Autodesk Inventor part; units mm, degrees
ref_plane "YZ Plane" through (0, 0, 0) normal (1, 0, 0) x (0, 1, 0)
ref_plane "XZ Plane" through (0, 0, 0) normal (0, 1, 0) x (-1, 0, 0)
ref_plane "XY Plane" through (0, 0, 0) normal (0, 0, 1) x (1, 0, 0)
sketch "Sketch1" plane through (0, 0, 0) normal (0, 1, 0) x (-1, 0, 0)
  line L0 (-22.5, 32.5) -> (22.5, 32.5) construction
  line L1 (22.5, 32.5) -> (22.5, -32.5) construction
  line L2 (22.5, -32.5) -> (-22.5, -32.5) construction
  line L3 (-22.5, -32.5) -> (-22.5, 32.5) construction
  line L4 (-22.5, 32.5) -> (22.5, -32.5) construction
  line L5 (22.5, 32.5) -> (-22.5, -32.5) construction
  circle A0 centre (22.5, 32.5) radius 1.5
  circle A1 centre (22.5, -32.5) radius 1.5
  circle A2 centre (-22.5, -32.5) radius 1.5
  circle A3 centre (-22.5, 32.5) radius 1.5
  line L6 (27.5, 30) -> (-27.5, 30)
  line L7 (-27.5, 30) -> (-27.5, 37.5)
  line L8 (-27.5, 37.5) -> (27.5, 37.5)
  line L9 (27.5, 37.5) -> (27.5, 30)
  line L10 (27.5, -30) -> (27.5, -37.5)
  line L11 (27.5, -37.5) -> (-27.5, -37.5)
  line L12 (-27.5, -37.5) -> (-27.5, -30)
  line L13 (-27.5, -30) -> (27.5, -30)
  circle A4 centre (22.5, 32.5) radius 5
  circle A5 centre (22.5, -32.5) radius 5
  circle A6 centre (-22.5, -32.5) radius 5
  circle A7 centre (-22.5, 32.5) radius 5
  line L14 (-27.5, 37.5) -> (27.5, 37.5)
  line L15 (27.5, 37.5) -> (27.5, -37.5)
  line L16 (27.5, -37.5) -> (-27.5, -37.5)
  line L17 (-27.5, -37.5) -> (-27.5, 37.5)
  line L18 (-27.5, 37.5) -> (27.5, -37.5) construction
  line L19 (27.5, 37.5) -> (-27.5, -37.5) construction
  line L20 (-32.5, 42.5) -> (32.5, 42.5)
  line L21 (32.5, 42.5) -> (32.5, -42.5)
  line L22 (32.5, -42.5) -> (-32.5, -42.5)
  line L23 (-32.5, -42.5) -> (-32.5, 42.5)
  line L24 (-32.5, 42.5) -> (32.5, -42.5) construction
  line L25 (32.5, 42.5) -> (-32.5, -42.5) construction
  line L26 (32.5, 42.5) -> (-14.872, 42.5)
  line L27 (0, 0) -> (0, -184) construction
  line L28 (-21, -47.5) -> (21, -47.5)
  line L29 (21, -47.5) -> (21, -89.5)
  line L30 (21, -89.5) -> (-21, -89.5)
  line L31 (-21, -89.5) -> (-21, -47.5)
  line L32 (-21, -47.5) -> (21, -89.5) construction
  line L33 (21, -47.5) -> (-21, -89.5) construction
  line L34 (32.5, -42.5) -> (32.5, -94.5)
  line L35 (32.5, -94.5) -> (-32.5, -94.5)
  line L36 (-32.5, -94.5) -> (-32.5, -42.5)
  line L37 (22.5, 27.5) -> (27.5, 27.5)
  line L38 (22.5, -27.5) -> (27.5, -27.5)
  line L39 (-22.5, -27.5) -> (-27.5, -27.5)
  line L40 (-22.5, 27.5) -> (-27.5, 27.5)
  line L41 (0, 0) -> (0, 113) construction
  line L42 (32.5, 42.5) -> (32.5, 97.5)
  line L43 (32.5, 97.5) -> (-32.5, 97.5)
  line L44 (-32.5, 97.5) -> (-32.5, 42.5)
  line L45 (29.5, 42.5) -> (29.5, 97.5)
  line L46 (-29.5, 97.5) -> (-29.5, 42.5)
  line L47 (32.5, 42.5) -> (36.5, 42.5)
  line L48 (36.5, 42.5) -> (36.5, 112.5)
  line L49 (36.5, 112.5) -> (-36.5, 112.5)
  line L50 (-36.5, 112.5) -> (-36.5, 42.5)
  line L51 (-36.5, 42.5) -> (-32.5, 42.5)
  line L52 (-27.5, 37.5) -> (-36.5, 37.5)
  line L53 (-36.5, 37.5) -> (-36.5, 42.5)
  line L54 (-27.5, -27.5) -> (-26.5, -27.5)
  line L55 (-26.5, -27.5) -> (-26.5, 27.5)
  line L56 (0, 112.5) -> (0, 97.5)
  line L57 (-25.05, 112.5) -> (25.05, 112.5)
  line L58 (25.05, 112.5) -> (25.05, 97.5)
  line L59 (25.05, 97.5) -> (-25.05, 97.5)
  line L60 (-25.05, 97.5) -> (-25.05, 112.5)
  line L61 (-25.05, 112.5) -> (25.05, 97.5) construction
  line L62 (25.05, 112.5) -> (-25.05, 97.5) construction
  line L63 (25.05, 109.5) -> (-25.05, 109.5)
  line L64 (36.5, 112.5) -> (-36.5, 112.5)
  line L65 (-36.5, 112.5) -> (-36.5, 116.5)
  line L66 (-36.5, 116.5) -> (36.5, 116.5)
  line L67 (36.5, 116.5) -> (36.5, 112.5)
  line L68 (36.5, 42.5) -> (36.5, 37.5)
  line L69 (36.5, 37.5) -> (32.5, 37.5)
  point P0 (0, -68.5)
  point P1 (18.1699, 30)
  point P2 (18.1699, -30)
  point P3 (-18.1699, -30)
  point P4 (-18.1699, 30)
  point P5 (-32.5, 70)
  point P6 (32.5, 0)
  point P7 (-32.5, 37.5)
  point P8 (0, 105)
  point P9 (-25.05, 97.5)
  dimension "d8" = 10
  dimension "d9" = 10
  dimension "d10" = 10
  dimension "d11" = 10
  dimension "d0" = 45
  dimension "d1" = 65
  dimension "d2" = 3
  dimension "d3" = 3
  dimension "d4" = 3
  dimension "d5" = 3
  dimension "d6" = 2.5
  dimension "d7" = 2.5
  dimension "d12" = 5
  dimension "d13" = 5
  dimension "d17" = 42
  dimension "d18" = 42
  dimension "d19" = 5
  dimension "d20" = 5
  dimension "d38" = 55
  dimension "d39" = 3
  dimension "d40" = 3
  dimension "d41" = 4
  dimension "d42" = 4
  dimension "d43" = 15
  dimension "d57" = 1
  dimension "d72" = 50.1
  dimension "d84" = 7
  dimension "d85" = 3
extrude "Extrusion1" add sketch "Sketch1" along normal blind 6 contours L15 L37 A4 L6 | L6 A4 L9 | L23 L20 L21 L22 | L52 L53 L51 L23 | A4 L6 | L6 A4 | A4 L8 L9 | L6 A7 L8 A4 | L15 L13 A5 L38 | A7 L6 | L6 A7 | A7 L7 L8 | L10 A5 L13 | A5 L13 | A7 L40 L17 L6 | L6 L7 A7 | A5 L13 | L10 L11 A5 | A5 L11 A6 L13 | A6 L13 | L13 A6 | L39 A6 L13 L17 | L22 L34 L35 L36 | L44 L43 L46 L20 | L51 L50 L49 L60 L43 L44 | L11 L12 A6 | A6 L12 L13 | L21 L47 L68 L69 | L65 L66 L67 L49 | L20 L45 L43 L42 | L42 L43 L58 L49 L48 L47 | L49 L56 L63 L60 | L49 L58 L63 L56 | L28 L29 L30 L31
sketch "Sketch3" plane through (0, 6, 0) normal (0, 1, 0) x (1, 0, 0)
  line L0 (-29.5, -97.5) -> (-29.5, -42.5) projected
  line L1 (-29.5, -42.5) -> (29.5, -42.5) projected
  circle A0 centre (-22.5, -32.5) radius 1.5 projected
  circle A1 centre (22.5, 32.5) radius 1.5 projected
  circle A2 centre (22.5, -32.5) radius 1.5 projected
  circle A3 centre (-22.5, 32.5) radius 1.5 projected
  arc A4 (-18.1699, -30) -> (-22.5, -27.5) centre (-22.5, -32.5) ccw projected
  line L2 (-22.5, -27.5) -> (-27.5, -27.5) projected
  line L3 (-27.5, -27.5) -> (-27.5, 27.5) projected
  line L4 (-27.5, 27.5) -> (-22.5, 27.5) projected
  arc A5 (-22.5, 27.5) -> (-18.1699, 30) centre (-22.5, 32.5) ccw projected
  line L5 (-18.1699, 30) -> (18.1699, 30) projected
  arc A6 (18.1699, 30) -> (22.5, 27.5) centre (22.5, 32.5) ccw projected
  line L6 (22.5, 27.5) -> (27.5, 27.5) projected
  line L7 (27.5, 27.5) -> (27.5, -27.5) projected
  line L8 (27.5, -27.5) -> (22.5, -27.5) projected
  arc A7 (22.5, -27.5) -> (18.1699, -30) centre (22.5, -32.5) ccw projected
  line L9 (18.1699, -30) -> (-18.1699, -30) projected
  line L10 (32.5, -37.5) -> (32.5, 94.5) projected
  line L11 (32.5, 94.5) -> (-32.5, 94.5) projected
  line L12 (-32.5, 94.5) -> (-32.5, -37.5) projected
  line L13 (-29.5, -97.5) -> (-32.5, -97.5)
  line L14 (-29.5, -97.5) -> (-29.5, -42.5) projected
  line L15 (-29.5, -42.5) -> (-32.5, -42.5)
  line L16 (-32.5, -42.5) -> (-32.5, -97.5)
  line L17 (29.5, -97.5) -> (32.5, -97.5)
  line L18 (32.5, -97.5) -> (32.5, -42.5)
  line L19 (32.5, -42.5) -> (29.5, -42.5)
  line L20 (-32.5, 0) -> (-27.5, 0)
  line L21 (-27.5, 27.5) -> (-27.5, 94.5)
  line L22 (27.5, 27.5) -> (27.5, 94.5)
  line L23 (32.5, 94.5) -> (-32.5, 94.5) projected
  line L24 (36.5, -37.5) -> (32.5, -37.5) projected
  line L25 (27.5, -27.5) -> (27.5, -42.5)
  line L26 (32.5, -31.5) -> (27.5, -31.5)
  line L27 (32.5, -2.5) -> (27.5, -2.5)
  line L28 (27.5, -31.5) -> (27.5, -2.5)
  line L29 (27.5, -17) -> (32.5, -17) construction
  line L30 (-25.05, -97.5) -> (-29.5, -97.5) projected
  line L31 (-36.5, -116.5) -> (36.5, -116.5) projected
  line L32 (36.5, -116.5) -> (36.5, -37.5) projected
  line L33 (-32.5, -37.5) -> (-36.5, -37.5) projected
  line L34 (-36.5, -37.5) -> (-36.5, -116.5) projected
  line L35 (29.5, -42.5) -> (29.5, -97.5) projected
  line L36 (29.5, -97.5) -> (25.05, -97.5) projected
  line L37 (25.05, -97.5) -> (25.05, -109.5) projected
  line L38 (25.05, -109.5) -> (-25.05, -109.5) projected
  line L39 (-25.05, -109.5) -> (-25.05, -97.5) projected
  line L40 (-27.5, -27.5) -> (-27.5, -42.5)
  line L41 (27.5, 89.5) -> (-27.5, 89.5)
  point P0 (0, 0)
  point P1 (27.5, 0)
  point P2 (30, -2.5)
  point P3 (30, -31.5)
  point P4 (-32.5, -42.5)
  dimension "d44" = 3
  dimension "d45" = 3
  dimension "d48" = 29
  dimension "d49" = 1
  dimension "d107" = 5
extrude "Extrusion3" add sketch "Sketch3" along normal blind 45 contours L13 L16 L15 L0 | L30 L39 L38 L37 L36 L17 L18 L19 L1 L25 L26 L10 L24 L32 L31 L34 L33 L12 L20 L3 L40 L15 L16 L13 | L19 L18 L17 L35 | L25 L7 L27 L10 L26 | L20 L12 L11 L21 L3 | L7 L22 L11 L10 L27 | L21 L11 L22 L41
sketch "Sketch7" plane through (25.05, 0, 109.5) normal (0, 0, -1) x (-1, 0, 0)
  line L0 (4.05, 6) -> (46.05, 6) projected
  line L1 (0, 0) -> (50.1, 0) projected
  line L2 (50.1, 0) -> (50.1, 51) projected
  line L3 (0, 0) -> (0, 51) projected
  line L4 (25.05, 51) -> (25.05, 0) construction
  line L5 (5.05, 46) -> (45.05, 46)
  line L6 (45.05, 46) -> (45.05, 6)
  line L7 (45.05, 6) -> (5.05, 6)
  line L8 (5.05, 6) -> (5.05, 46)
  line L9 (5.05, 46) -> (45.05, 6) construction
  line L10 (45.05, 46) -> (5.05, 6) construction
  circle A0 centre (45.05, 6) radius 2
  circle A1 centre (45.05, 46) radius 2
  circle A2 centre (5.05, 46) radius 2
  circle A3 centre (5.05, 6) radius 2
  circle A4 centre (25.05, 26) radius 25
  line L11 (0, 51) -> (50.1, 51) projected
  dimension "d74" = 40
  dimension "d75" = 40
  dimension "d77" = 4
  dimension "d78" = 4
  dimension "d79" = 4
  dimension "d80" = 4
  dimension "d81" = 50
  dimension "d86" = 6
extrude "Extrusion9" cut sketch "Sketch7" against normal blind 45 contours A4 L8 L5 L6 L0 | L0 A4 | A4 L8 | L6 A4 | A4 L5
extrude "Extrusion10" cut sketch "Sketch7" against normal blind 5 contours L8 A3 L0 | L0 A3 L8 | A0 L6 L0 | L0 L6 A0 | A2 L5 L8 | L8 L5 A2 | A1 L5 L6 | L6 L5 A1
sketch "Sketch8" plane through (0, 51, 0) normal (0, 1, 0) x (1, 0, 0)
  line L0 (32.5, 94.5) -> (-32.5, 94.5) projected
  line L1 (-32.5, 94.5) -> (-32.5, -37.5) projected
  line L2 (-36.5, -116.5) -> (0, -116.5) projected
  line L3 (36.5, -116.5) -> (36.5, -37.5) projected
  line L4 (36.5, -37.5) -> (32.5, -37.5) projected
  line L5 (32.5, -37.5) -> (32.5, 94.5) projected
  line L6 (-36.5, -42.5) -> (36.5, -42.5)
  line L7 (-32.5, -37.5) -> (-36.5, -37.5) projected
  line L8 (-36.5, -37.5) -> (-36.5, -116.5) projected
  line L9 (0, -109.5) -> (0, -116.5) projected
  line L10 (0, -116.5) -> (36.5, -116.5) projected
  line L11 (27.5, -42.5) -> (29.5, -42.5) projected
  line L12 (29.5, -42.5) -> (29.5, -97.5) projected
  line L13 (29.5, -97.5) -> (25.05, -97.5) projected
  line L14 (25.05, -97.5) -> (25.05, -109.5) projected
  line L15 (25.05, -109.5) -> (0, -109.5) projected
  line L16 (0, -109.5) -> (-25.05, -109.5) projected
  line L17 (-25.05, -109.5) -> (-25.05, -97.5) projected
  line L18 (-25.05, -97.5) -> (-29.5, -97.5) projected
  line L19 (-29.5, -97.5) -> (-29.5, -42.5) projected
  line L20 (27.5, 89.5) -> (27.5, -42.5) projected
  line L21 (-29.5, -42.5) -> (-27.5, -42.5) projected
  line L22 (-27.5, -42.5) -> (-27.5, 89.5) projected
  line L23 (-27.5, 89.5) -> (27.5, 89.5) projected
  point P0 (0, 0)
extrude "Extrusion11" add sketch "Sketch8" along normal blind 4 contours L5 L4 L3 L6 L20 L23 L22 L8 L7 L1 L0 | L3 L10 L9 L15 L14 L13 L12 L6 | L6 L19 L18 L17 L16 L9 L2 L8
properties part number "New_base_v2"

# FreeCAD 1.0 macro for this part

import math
import FreeCAD as App
import Part
import Sketcher

V = App.Vector


def add_polygon(sketch, points):
    """Adds a closed chain of lines whose ends are joined by coincident constraints."""
    first, n = sketch.GeometryCount, len(points)
    for a, b in zip(points, points[1:] + points[:1]):
        sketch.addGeometry(Part.LineSegment(App.Vector(*a, 0), App.Vector(*b, 0)), False)
    for i in range(n):
        sketch.addConstraint(Sketcher.Constraint("Coincident", first + i, 2, first + (i + 1) % n, 1))

doc = App.newDocument("Part")
params = doc.addObject("Spreadsheet::Sheet", "Params")
for row, (alias, value) in enumerate([
    ("sketch1_diameter", "3 mm"),
    ("sketch1_radius", "5 mm"),
    ("sketch1_width", "4 mm"),
    ("sketch1_width2", "65 mm"),
    ("sketch1_width3", "5 mm"),
    ("pad1_length", "6 mm"),
    ("sketch2_width", "65 mm"),
    ("sketch2_width2", "4 mm"),
    ("sketch2_height", "132 mm"),
    ("sketch2_height2", "79 mm"),
    ("sketch2_height3", "12 mm"),
    ("pad2_length", "45 mm"),
    ("sketch3_diameter", "50 mm"),
    ("pocket1_length", "45 mm"),
    ("sketch4_diameter", "4 mm"),
    ("pocket2_length", "5 mm"),
    ("sketch5_width", "65 mm"),
    ("sketch5_width2", "4 mm"),
    ("sketch5_width3", "2 mm"),
    ("sketch5_width4", "55 mm"),
    ("sketch5_height", "132 mm"),
    ("pad3_length", "4 mm"),
], start=1):
    params.set(f"A{row}", alias)
    params.set(f"B{row}", "=" + value)
    params.setAlias(f"B{row}", alias)

body = doc.addObject("PartDesign::Body", "Body")

# Sketch on XZ plane
sketch1 = body.newObject("Sketcher::SketchObject", "Sketch")
sketch1.AttachmentSupport = (doc.getObject("XZ_Plane"), [""])
sketch1.MapMode = "FlatFace"
add_polygon(sketch1, [(-32.5, 37.5), (-36.5, 37.5), (-36.5, 116.5), (36.5, 116.5), (36.5, 37.5), (32.5, 37.5), (32.5, -94.5), (-32.5, -94.5)])  # lines 0-7
sketch1.addGeometry(Part.LineSegment(V(-22.5, 27.5, 0), V(-27.5, 27.5, 0)), False)  # 8
sketch1.addGeometry(Part.LineSegment(V(-27.5, 27.5, 0), V(-27.5, -27.5, 0)), False)  # 9
sketch1.addGeometry(Part.LineSegment(V(-27.5, -27.5, 0), V(-22.5, -27.5, 0)), False)  # 10
sketch1.addGeometry(Part.ArcOfCircle(Part.Circle(V(-22.5, -32.5, 0), V(0, 0, 1), 5), math.radians(30), math.radians(90)), False)  # 11
sketch1.addGeometry(Part.LineSegment(V(-18.2, -30, 0), V(18.2, -30, 0)), False)  # 12
sketch1.addGeometry(Part.ArcOfCircle(Part.Circle(V(22.5, -32.5, 0), V(0, 0, 1), 5), math.radians(90), math.radians(150)), False)  # 13
sketch1.addGeometry(Part.LineSegment(V(22.5, -27.5, 0), V(27.5, -27.5, 0)), False)  # 14
sketch1.addGeometry(Part.LineSegment(V(27.5, -27.5, 0), V(27.5, 27.5, 0)), False)  # 15
sketch1.addGeometry(Part.LineSegment(V(27.5, 27.5, 0), V(22.5, 27.5, 0)), False)  # 16
sketch1.addGeometry(Part.ArcOfCircle(Part.Circle(V(22.5, 32.5, 0), V(0, 0, 1), 5), math.radians(-150), math.radians(-90)), False)  # 17
sketch1.addGeometry(Part.LineSegment(V(18.2, 30, 0), V(-18.2, 30, 0)), False)  # 18
sketch1.addGeometry(Part.ArcOfCircle(Part.Circle(V(-22.5, 32.5, 0), V(0, 0, 1), 5), math.radians(-90), math.radians(-30)), False)  # 19
add_polygon(sketch1, [(29.5, 42.5), (29.5, 97.5), (25.1, 97.5), (25.1, 109.5), (-25.1, 109.5), (-25.1, 97.5), (-29.5, 97.5), (-29.5, 42.5)])  # lines 20-27
sketch1.addGeometry(Part.Circle(V(-22.5, 32.5, 0), V(0, 0, 1), 1.5), False)  # 28
sketch1.addGeometry(Part.Circle(V(22.5, 32.5, 0), V(0, 0, 1), 1.5), False)  # 29
sketch1.addGeometry(Part.Circle(V(22.5, -32.5, 0), V(0, 0, 1), 1.5), False)  # 30
sketch1.addGeometry(Part.Circle(V(-22.5, -32.5, 0), V(0, 0, 1), 1.5), False)  # 31
sketch1.addConstraint(Sketcher.Constraint("Coincident", 8, 2, 9, 1))
sketch1.addConstraint(Sketcher.Constraint("Coincident", 9, 2, 10, 1))
sketch1.addConstraint(Sketcher.Constraint("Tangent", 10, 2, 11, 2))
sketch1.addConstraint(Sketcher.Constraint("Coincident", 11, 1, 12, 1))
sketch1.addConstraint(Sketcher.Constraint("Coincident", 12, 2, 13, 2))
sketch1.addConstraint(Sketcher.Constraint("Tangent", 13, 1, 14, 1))
sketch1.addConstraint(Sketcher.Constraint("Coincident", 14, 2, 15, 1))
sketch1.addConstraint(Sketcher.Constraint("Coincident", 15, 2, 16, 1))
sketch1.addConstraint(Sketcher.Constraint("Tangent", 16, 2, 17, 2))
sketch1.addConstraint(Sketcher.Constraint("Coincident", 17, 1, 18, 1))
sketch1.addConstraint(Sketcher.Constraint("Coincident", 18, 2, 19, 2))
sketch1.addConstraint(Sketcher.Constraint("Tangent", 19, 1, 8, 1))
sketch1.addConstraint(Sketcher.Constraint("Horizontal", 0))
sketch1.addConstraint(Sketcher.Constraint("Vertical", 1))
sketch1.addConstraint(Sketcher.Constraint("Horizontal", 2))
sketch1.addConstraint(Sketcher.Constraint("Vertical", 3))
sketch1.addConstraint(Sketcher.Constraint("Horizontal", 4))
sketch1.addConstraint(Sketcher.Constraint("Vertical", 5))
sketch1.addConstraint(Sketcher.Constraint("Horizontal", 6))
sketch1.addConstraint(Sketcher.Constraint("Vertical", 7))
sketch1.addConstraint(Sketcher.Constraint("Horizontal", 8))
sketch1.addConstraint(Sketcher.Constraint("Vertical", 9))
sketch1.addConstraint(Sketcher.Constraint("Horizontal", 10))
sketch1.addConstraint(Sketcher.Constraint("Horizontal", 12))
sketch1.addConstraint(Sketcher.Constraint("Horizontal", 14))
sketch1.addConstraint(Sketcher.Constraint("Vertical", 15))
sketch1.addConstraint(Sketcher.Constraint("Horizontal", 16))
sketch1.addConstraint(Sketcher.Constraint("Horizontal", 18))
sketch1.addConstraint(Sketcher.Constraint("Vertical", 20))
sketch1.addConstraint(Sketcher.Constraint("Horizontal", 21))
sketch1.addConstraint(Sketcher.Constraint("Vertical", 22))
sketch1.addConstraint(Sketcher.Constraint("Horizontal", 23))
sketch1.addConstraint(Sketcher.Constraint("Vertical", 24))
sketch1.addConstraint(Sketcher.Constraint("Horizontal", 25))
sketch1.addConstraint(Sketcher.Constraint("Vertical", 26))
sketch1.addConstraint(Sketcher.Constraint("Horizontal", 27))
sketch1.addConstraint(Sketcher.Constraint("Coincident", 28, 3, 19, 3))
sketch1.addConstraint(Sketcher.Constraint("Coincident", 29, 3, 17, 3))
sketch1.addConstraint(Sketcher.Constraint("Coincident", 30, 3, 13, 3))
sketch1.addConstraint(Sketcher.Constraint("Coincident", 31, 3, 11, 3))
sketch1.addConstraint(Sketcher.Constraint("Equal", 11, 13))
sketch1.addConstraint(Sketcher.Constraint("Equal", 13, 17))
sketch1.addConstraint(Sketcher.Constraint("Equal", 17, 19))
sketch1.addConstraint(Sketcher.Constraint("Equal", 28, 29))
sketch1.addConstraint(Sketcher.Constraint("Equal", 29, 30))
sketch1.addConstraint(Sketcher.Constraint("Equal", 30, 31))
sketch1.addConstraint(Sketcher.Constraint("Symmetric", 11, 3, 17, 3, -1, 1))
sketch1.addConstraint(Sketcher.Constraint("Symmetric", 13, 3, 19, 3, -1, 1))
sketch1.addConstraint(Sketcher.Constraint("Symmetric", 11, 3, 13, 3, -2))
sketch1.addConstraint(Sketcher.Constraint("Symmetric", 0, 2, 3, 2, -2))
sketch1.addConstraint(Sketcher.Constraint("Symmetric", 21, 2, 24, 2, -2))
sketch1.addConstraint(Sketcher.Constraint("Vertical", 12, 2, 17, 1))
sketch1.addConstraint(Sketcher.Constraint("Equal", 0, 4))
sketch1.addConstraint(Sketcher.Constraint("Equal", 10, 14))
sketch1.addConstraint(Sketcher.Constraint("Equal", 21, 25))
sketch1.addConstraint(Sketcher.Constraint("Equal", 15, 20))
sketch1.addConstraint(Sketcher.Constraint("Diameter", 28, 3.0))
sketch1.addConstraint(Sketcher.Constraint("Radius", 11, 5.0))
sketch1.addConstraint(Sketcher.Constraint("DistanceX", 0, 2, 0, 1, 4.0))
sketch1.addConstraint(Sketcher.Constraint("DistanceX", 6, 2, 6, 1, 65.0))
sketch1.addConstraint(Sketcher.Constraint("DistanceX", 8, 2, 8, 1, 5.0))
sketch1.addConstraint(Sketcher.Constraint("DistanceY", 9, 2, 9, 1, 55.0))
sketch1.addConstraint(Sketcher.Constraint("DistanceX", 23, 2, 23, 1, 50.1))
sketch1.addConstraint(Sketcher.Constraint("DistanceX", 11, 3, 13, 3, 45.0))
sketch1.addConstraint(Sketcher.Constraint("DistanceY", 19, 3, 0, 2, 5.0))
sketch1.addConstraint(Sketcher.Constraint("DistanceX", 20, 2, 2, 2, 7.0))
sketch1.addConstraint(Sketcher.Constraint("DistanceY", 17, 3, 20, 2, 65.0))
sketch1.addConstraint(Sketcher.Constraint("DistanceY", 22, 2, 2, 2, 7.0))
sketch1.addConstraint(Sketcher.Constraint("DistanceY", 11, 3, 11, 1, 2.5))
sketch1.addConstraint(Sketcher.Constraint("DistanceY", 1, 1, 1, 2, 79.0))
sketch1.addConstraint(Sketcher.Constraint("DistanceY", 5, 2, 5, 1, 132.0))
sketch1.setExpression("Constraints[72]", "Params.sketch1_diameter")
sketch1.setExpression("Constraints[73]", "Params.sketch1_radius")
sketch1.setExpression("Constraints[74]", "Params.sketch1_width")
sketch1.setExpression("Constraints[75]", "Params.sketch1_width2")
sketch1.setExpression("Constraints[76]", "Params.sketch1_width3")
pad1 = body.newObject("PartDesign::Pad", "Pad")
pad1.Profile = sketch1
pad1.setExpression("Length", "Params.pad1_length")
pad1.Reversed = True

# Sketch on XZ plane
sketch2 = body.newObject("Sketcher::SketchObject", "Sketch001")
sketch2.AttachmentSupport = (doc.getObject("XZ_Plane"), [""])
sketch2.MapMode = "FlatFace"
sketch2.AttachmentOffset = App.Placement(V(0, 0, -6), App.Rotation())
add_polygon(sketch2, [(32.5, 37.5), (32.5, -94.5), (-32.5, -94.5), (-32.5, 37.5), (-36.5, 37.5), (-36.5, 116.5), (36.5, 116.5), (36.5, 37.5)])  # lines 0-7
add_polygon(sketch2, [(-29.5, 97.5), (-29.5, 42.5), (-27.5, 42.5), (-27.5, -89.5), (27.5, -89.5), (27.5, 42.5), (29.5, 42.5), (29.5, 97.5), (25.1, 97.5), (25.1, 109.5), (-25.1, 109.5), (-25.1, 97.5)])  # lines 8-19
sketch2.addConstraint(Sketcher.Constraint("Vertical", 0))
sketch2.addConstraint(Sketcher.Constraint("Horizontal", 1))
sketch2.addConstraint(Sketcher.Constraint("Vertical", 2))
sketch2.addConstraint(Sketcher.Constraint("Horizontal", 3))
sketch2.addConstraint(Sketcher.Constraint("Vertical", 4))
sketch2.addConstraint(Sketcher.Constraint("Horizontal", 5))
sketch2.addConstraint(Sketcher.Constraint("Vertical", 6))
sketch2.addConstraint(Sketcher.Constraint("Horizontal", 7))
sketch2.addConstraint(Sketcher.Constraint("Vertical", 8))
sketch2.addConstraint(Sketcher.Constraint("Horizontal", 9))
sketch2.addConstraint(Sketcher.Constraint("Vertical", 10))
sketch2.addConstraint(Sketcher.Constraint("Horizontal", 11))
sketch2.addConstraint(Sketcher.Constraint("Vertical", 12))
sketch2.addConstraint(Sketcher.Constraint("Horizontal", 13))
sketch2.addConstraint(Sketcher.Constraint("Vertical", 14))
sketch2.addConstraint(Sketcher.Constraint("Horizontal", 15))
sketch2.addConstraint(Sketcher.Constraint("Vertical", 16))
sketch2.addConstraint(Sketcher.Constraint("Horizontal", 17))
sketch2.addConstraint(Sketcher.Constraint("Vertical", 18))
sketch2.addConstraint(Sketcher.Constraint("Horizontal", 19))
sketch2.addConstraint(Sketcher.Constraint("Symmetric", 3, 2, 6, 2, -2))
sketch2.addConstraint(Sketcher.Constraint("Symmetric", 9, 2, 12, 2, -2))
sketch2.addConstraint(Sketcher.Constraint("Symmetric", 15, 2, 18, 2, -2))
sketch2.addConstraint(Sketcher.Constraint("Equal", 3, 7))
sketch2.addConstraint(Sketcher.Constraint("Equal", 9, 13))
sketch2.addConstraint(Sketcher.Constraint("Equal", 11, 8))
sketch2.addConstraint(Sketcher.Constraint("Equal", 2, 10))
sketch2.addConstraint(Sketcher.Constraint("DistanceX", 2, 2, 8, 2, 3.0))
sketch2.addConstraint(Sketcher.Constraint("DistanceY", 2, 2, 8, 2, 5.0))
sketch2.addConstraint(Sketcher.Constraint("DistanceX", 2, 2, 9, 2, 5.0))
sketch2.addConstraint(Sketcher.Constraint("DistanceX", 1, 2, 1, 1, 65.0))
sketch2.addConstraint(Sketcher.Constraint("DistanceX", 3, 2, 3, 1, 4.0))
sketch2.addConstraint(Sketcher.Constraint("DistanceY", 0, 2, 0, 1, 132.0))
sketch2.addConstraint(Sketcher.Constraint("DistanceY", 4, 1, 4, 2, 79.0))
sketch2.addConstraint(Sketcher.Constraint("DistanceY", 16, 1, 16, 2, 12.0))
sketch2.addConstraint(Sketcher.Constraint("DistanceX", 17, 2, 17, 1, 50.1))
sketch2.addConstraint(Sketcher.Constraint("DistanceY", 0, 2, -1, 1, 94.5))
sketch2.setExpression("Constraints[50]", "Params.sketch2_width")
sketch2.setExpression("Constraints[51]", "Params.sketch2_width2")
sketch2.setExpression("Constraints[52]", "Params.sketch2_height")
sketch2.setExpression("Constraints[53]", "Params.sketch2_height2")
sketch2.setExpression("Constraints[54]", "Params.sketch2_height3")
pad2 = body.newObject("PartDesign::Pad", "Pad001")
pad2.Profile = sketch2
pad2.setExpression("Length", "Params.pad2_length")
pad2.Reversed = True

# Sketch on XY plane
sketch3 = body.newObject("Sketcher::SketchObject", "Sketch002")
sketch3.AttachmentSupport = (doc.getObject("XY_Plane"), [""])
sketch3.MapMode = "FlatFace"
sketch3.AttachmentOffset = App.Placement(V(0, 0, 109.5), App.Rotation())
sketch3.addGeometry(Part.Circle(V(0, 26, 0), V(0, 0, 1), 25), False)
sketch3.addConstraint(Sketcher.Constraint("PointOnObject", 0, 3, -2))
sketch3.addConstraint(Sketcher.Constraint("Diameter", 0, 50.0))
sketch3.addConstraint(Sketcher.Constraint("DistanceY", -1, 1, 0, 3, 26.0))
sketch3.setExpression("Constraints[1]", "Params.sketch3_diameter")
pocket1 = body.newObject("PartDesign::Pocket", "Pocket")
pocket1.Profile = sketch3
pocket1.setExpression("Length", "Params.pocket1_length")
pocket1.Reversed = True

# Sketch on XY plane
sketch4 = body.newObject("Sketcher::SketchObject", "Sketch003")
sketch4.AttachmentSupport = (doc.getObject("XY_Plane"), [""])
sketch4.MapMode = "FlatFace"
sketch4.AttachmentOffset = App.Placement(V(0, 0, 109.5), App.Rotation())
sketch4.addGeometry(Part.Circle(V(20, 6, 0), V(0, 0, 1), 2), False)
sketch4.addGeometry(Part.Circle(V(-20, 6, 0), V(0, 0, 1), 2), False)
sketch4.addGeometry(Part.Circle(V(20, 46, 0), V(0, 0, 1), 2), False)
sketch4.addGeometry(Part.Circle(V(-20, 46, 0), V(0, 0, 1), 2), False)
sketch4.addConstraint(Sketcher.Constraint("Equal", 0, 1))
sketch4.addConstraint(Sketcher.Constraint("Equal", 1, 2))
sketch4.addConstraint(Sketcher.Constraint("Equal", 2, 3))
sketch4.addConstraint(Sketcher.Constraint("Symmetric", 0, 3, 1, 3, -2))
sketch4.addConstraint(Sketcher.Constraint("Symmetric", 2, 3, 3, 3, -2))
sketch4.addConstraint(Sketcher.Constraint("Vertical", 0, 3, 2, 3))
sketch4.addConstraint(Sketcher.Constraint("Diameter", 0, 4.0))
sketch4.addConstraint(Sketcher.Constraint("DistanceY", -1, 1, 0, 3, 6.0))
sketch4.addConstraint(Sketcher.Constraint("DistanceX", 1, 3, 0, 3, 40.0))
sketch4.addConstraint(Sketcher.Constraint("DistanceY", 0, 3, 2, 3, 40.0))
sketch4.setExpression("Constraints[6]", "Params.sketch4_diameter")
pocket2 = body.newObject("PartDesign::Pocket", "Pocket001")
pocket2.Profile = sketch4
pocket2.setExpression("Length", "Params.pocket2_length")
pocket2.Reversed = True

# Sketch on XZ plane
sketch5 = body.newObject("Sketcher::SketchObject", "Sketch004")
sketch5.AttachmentSupport = (doc.getObject("XZ_Plane"), [""])
sketch5.MapMode = "FlatFace"
sketch5.AttachmentOffset = App.Placement(V(0, 0, -51), App.Rotation())
add_polygon(sketch5, [(32.5, 37.5), (32.5, -94.5), (-32.5, -94.5), (-32.5, 37.5), (-36.5, 37.5), (-36.5, 116.5), (36.5, 116.5), (36.5, 37.5)])  # lines 0-7
add_polygon(sketch5, [(27.5, 42.5), (29.5, 42.5), (29.5, 97.5), (25.1, 97.5), (25.1, 109.5), (-25.1, 109.5), (-25.1, 97.5), (-29.5, 97.5), (-29.5, 42.5), (-27.5, 42.5), (-27.5, -89.5), (27.5, -89.5)])  # lines 8-19
sketch5.addConstraint(Sketcher.Constraint("Vertical", 0))
sketch5.addConstraint(Sketcher.Constraint("Horizontal", 1))
sketch5.addConstraint(Sketcher.Constraint("Vertical", 2))
sketch5.addConstraint(Sketcher.Constraint("Horizontal", 3))
sketch5.addConstraint(Sketcher.Constraint("Vertical", 4))
sketch5.addConstraint(Sketcher.Constraint("Horizontal", 5))
sketch5.addConstraint(Sketcher.Constraint("Vertical", 6))
sketch5.addConstraint(Sketcher.Constraint("Horizontal", 7))
sketch5.addConstraint(Sketcher.Constraint("Horizontal", 8))
sketch5.addConstraint(Sketcher.Constraint("Vertical", 9))
sketch5.addConstraint(Sketcher.Constraint("Horizontal", 10))
sketch5.addConstraint(Sketcher.Constraint("Vertical", 11))
sketch5.addConstraint(Sketcher.Constraint("Horizontal", 12))
sketch5.addConstraint(Sketcher.Constraint("Vertical", 13))
sketch5.addConstraint(Sketcher.Constraint("Horizontal", 14))
sketch5.addConstraint(Sketcher.Constraint("Vertical", 15))
sketch5.addConstraint(Sketcher.Constraint("Horizontal", 16))
sketch5.addConstraint(Sketcher.Constraint("Vertical", 17))
sketch5.addConstraint(Sketcher.Constraint("Horizontal", 18))
sketch5.addConstraint(Sketcher.Constraint("Vertical", 19))
sketch5.addConstraint(Sketcher.Constraint("Symmetric", 3, 2, 6, 2, -2))
sketch5.addConstraint(Sketcher.Constraint("Symmetric", 10, 2, 13, 2, -2))
sketch5.addConstraint(Sketcher.Constraint("Symmetric", 8, 2, 15, 2, -2))
sketch5.addConstraint(Sketcher.Constraint("Equal", 3, 7))
sketch5.addConstraint(Sketcher.Constraint("Equal", 8, 16))
sketch5.addConstraint(Sketcher.Constraint("Equal", 18, 9))
sketch5.addConstraint(Sketcher.Constraint("Equal", 2, 17))
sketch5.addConstraint(Sketcher.Constraint("DistanceX", 1, 2, 1, 1, 65.0))
sketch5.addConstraint(Sketcher.Constraint("DistanceX", 3, 2, 3, 1, 4.0))
sketch5.addConstraint(Sketcher.Constraint("DistanceX", 8, 1, 8, 2, 2.0))
sketch5.addConstraint(Sketcher.Constraint("DistanceX", 18, 1, 18, 2, 55.0))
sketch5.addConstraint(Sketcher.Constraint("DistanceY", 0, 2, 0, 1, 132.0))
sketch5.addConstraint(Sketcher.Constraint("DistanceY", 4, 1, 4, 2, 79.0))
sketch5.addConstraint(Sketcher.Constraint("DistanceY", 11, 1, 11, 2, 12.0))
sketch5.addConstraint(Sketcher.Constraint("DistanceX", 12, 2, 12, 1, 50.1))
sketch5.addConstraint(Sketcher.Constraint("DistanceY", 7, 2, 8, 2, 5.0))
sketch5.addConstraint(Sketcher.Constraint("DistanceY", 0, 2, -1, 1, 94.5))
sketch5.setExpression("Constraints[47]", "Params.sketch5_width")
sketch5.setExpression("Constraints[48]", "Params.sketch5_width2")
sketch5.setExpression("Constraints[49]", "Params.sketch5_width3")
sketch5.setExpression("Constraints[50]", "Params.sketch5_width4")
sketch5.setExpression("Constraints[51]", "Params.sketch5_height")
pad3 = body.newObject("PartDesign::Pad", "Pad002")
pad3.Profile = sketch5
pad3.setExpression("Length", "Params.pad3_length")
pad3.Reversed = True

doc.recompute()
